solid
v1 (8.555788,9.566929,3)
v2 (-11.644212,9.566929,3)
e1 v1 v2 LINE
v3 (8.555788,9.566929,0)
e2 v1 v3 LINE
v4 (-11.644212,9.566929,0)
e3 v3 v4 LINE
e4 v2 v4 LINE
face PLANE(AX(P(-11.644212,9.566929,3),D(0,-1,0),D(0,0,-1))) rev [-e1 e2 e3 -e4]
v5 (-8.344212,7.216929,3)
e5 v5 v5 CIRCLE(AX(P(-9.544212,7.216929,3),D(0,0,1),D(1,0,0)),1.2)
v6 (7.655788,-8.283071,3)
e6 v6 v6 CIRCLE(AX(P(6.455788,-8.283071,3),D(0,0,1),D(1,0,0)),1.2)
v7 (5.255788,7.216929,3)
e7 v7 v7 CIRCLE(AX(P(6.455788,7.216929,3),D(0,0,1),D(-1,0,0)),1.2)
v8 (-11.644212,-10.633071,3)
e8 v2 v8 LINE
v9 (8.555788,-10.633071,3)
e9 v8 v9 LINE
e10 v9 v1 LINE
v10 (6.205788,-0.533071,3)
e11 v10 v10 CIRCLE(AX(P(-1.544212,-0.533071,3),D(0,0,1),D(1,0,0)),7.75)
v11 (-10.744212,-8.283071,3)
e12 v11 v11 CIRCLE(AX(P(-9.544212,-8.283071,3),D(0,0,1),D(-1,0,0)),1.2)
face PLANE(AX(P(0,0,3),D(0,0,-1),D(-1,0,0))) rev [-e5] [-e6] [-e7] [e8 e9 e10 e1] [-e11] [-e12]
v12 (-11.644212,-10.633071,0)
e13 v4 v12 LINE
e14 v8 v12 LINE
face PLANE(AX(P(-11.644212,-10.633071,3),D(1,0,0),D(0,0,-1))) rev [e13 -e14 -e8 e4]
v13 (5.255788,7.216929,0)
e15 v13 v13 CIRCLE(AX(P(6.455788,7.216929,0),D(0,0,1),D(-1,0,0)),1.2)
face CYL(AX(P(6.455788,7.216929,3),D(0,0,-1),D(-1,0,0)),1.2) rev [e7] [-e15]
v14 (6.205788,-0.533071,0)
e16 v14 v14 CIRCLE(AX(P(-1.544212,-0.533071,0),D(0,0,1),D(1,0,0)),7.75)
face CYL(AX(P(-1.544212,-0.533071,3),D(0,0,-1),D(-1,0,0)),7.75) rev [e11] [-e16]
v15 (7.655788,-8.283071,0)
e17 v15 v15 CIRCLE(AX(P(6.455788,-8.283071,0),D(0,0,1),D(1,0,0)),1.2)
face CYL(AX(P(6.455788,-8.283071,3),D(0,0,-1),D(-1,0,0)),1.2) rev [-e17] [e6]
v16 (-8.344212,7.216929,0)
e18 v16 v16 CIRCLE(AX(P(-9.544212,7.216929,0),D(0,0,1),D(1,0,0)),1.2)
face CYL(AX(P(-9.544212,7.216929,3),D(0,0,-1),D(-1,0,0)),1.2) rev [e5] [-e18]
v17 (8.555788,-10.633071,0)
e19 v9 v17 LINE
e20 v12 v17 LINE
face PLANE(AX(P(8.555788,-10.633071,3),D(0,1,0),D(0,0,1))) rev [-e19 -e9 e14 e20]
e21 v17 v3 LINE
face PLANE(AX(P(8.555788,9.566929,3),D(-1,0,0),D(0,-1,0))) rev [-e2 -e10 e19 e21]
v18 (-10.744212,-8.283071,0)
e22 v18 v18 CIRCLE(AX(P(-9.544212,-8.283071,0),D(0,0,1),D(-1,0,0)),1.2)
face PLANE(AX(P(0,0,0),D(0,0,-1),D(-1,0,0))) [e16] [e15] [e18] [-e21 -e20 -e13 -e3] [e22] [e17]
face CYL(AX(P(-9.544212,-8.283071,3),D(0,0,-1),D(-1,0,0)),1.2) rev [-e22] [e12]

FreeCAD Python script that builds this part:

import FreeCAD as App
import Part
import Sketcher

V = App.Vector
Q = App.Units.Quantity

doc = App.newDocument("Part")
body = doc.addObject("PartDesign::Body", "Body")

sketch1 = body.newObject("Sketcher::SketchObject", "Sketch")
sketch1.AttachmentSupport = (doc.getObject("XY_Plane"), [""])
sketch1.MapMode = "FlatFace"
sketch1.addGeometry(Part.LineSegment(V(-11.644212, 9.566929, 0), V(-11.644212, -10.633071, 0)), False)
sketch1.addGeometry(Part.LineSegment(V(-11.644212, -10.633071, 0), V(8.555788, -10.633071, 0)), False)
sketch1.addGeometry(Part.LineSegment(V(8.555788, -10.633071, 0), V(8.555788, 9.566929, 0)), False)
sketch1.addGeometry(Part.LineSegment(V(8.555788, 9.566929, 0), V(-11.644212, 9.566929, 0)), False)
sketch1.addGeometry(Part.Circle(V(-9.544212, -8.283071, 0), V(0, 0, 1), 1.2), False)
sketch1.addGeometry(Part.Circle(V(6.455788, -8.283071, 0), V(0, 0, 1), 1.2), False)
sketch1.addGeometry(Part.Circle(V(-9.544212, 7.216929, 0), V(0, 0, 1), 1.2), False)
sketch1.addGeometry(Part.Circle(V(-1.544212, -0.533071, 0), V(0, 0, 1), 7.75), False)
sketch1.addGeometry(Part.Circle(V(6.455788, 7.216929, 0), V(0, 0, 1), 1.2), False)
sketch1.addConstraint(Sketcher.Constraint("Coincident", 0, 2, 1, 1))
sketch1.addConstraint(Sketcher.Constraint("Coincident", 1, 2, 2, 1))
sketch1.addConstraint(Sketcher.Constraint("Coincident", 2, 2, 3, 1))
sketch1.addConstraint(Sketcher.Constraint("Coincident", 3, 2, 0, 1))
sketch1.addConstraint(Sketcher.Constraint("Vertical", 0))
sketch1.addConstraint(Sketcher.Constraint("Horizontal", 1))
sketch1.addConstraint(Sketcher.Constraint("Vertical", 2))
sketch1.addConstraint(Sketcher.Constraint("Horizontal", 3))
sketch1.addConstraint(Sketcher.Constraint("Equal", 4, 5))
sketch1.addConstraint(Sketcher.Constraint("Equal", 5, 6))
sketch1.addConstraint(Sketcher.Constraint("Equal", 6, 8))
sketch1.addConstraint(Sketcher.Constraint("Horizontal", 4, 3, 5, 3))
sketch1.addConstraint(Sketcher.Constraint("Horizontal", 6, 3, 8, 3))
sketch1.addConstraint(Sketcher.Constraint("Vertical", 4, 3, 6, 3))
sketch1.addConstraint(Sketcher.Constraint("Vertical", 5, 3, 8, 3))
sketch1.addConstraint(Sketcher.Constraint("Equal", 3, 0))
sketch1.addConstraint(Sketcher.Constraint("Diameter", 4, Q("2.4 mm")))
sketch1.addConstraint(Sketcher.Constraint("Diameter", 7, Q("15.5 mm")))
sketch1.addConstraint(Sketcher.Constraint("DistanceX", 1, 1, 1, 2, Q("20.2 mm")))
sketch1.addConstraint(Sketcher.Constraint("DistanceX", 4, 3, 5, 3, Q("16 mm")))
sketch1.addConstraint(Sketcher.Constraint("DistanceX", 4, 3, 7, 3, Q("8 mm")))
sketch1.addConstraint(Sketcher.Constraint("DistanceY", 4, 3, 6, 3, Q("15.5 mm")))
sketch1.addConstraint(Sketcher.Constraint("DistanceX", 0, 2, 4, 3, Q("2.1 mm")))
sketch1.addConstraint(Sketcher.Constraint("DistanceY", 0, 2, 7, 3, Q("10.1 mm")))
sketch1.addConstraint(Sketcher.Constraint("DistanceY", 4, 3, 7, 3, Q("7.75 mm")))
sketch1.addConstraint(Sketcher.Constraint("DistanceX", 4, 3, -1, 1, Q("9.544212 mm")))
sketch1.addConstraint(Sketcher.Constraint("DistanceY", 4, 3, -1, 1, Q("8.283071 mm")))
pad1 = body.newObject("PartDesign::Pad", "Pad")
pad1.Profile = sketch1
pad1.Length = 3

doc.recompute()
